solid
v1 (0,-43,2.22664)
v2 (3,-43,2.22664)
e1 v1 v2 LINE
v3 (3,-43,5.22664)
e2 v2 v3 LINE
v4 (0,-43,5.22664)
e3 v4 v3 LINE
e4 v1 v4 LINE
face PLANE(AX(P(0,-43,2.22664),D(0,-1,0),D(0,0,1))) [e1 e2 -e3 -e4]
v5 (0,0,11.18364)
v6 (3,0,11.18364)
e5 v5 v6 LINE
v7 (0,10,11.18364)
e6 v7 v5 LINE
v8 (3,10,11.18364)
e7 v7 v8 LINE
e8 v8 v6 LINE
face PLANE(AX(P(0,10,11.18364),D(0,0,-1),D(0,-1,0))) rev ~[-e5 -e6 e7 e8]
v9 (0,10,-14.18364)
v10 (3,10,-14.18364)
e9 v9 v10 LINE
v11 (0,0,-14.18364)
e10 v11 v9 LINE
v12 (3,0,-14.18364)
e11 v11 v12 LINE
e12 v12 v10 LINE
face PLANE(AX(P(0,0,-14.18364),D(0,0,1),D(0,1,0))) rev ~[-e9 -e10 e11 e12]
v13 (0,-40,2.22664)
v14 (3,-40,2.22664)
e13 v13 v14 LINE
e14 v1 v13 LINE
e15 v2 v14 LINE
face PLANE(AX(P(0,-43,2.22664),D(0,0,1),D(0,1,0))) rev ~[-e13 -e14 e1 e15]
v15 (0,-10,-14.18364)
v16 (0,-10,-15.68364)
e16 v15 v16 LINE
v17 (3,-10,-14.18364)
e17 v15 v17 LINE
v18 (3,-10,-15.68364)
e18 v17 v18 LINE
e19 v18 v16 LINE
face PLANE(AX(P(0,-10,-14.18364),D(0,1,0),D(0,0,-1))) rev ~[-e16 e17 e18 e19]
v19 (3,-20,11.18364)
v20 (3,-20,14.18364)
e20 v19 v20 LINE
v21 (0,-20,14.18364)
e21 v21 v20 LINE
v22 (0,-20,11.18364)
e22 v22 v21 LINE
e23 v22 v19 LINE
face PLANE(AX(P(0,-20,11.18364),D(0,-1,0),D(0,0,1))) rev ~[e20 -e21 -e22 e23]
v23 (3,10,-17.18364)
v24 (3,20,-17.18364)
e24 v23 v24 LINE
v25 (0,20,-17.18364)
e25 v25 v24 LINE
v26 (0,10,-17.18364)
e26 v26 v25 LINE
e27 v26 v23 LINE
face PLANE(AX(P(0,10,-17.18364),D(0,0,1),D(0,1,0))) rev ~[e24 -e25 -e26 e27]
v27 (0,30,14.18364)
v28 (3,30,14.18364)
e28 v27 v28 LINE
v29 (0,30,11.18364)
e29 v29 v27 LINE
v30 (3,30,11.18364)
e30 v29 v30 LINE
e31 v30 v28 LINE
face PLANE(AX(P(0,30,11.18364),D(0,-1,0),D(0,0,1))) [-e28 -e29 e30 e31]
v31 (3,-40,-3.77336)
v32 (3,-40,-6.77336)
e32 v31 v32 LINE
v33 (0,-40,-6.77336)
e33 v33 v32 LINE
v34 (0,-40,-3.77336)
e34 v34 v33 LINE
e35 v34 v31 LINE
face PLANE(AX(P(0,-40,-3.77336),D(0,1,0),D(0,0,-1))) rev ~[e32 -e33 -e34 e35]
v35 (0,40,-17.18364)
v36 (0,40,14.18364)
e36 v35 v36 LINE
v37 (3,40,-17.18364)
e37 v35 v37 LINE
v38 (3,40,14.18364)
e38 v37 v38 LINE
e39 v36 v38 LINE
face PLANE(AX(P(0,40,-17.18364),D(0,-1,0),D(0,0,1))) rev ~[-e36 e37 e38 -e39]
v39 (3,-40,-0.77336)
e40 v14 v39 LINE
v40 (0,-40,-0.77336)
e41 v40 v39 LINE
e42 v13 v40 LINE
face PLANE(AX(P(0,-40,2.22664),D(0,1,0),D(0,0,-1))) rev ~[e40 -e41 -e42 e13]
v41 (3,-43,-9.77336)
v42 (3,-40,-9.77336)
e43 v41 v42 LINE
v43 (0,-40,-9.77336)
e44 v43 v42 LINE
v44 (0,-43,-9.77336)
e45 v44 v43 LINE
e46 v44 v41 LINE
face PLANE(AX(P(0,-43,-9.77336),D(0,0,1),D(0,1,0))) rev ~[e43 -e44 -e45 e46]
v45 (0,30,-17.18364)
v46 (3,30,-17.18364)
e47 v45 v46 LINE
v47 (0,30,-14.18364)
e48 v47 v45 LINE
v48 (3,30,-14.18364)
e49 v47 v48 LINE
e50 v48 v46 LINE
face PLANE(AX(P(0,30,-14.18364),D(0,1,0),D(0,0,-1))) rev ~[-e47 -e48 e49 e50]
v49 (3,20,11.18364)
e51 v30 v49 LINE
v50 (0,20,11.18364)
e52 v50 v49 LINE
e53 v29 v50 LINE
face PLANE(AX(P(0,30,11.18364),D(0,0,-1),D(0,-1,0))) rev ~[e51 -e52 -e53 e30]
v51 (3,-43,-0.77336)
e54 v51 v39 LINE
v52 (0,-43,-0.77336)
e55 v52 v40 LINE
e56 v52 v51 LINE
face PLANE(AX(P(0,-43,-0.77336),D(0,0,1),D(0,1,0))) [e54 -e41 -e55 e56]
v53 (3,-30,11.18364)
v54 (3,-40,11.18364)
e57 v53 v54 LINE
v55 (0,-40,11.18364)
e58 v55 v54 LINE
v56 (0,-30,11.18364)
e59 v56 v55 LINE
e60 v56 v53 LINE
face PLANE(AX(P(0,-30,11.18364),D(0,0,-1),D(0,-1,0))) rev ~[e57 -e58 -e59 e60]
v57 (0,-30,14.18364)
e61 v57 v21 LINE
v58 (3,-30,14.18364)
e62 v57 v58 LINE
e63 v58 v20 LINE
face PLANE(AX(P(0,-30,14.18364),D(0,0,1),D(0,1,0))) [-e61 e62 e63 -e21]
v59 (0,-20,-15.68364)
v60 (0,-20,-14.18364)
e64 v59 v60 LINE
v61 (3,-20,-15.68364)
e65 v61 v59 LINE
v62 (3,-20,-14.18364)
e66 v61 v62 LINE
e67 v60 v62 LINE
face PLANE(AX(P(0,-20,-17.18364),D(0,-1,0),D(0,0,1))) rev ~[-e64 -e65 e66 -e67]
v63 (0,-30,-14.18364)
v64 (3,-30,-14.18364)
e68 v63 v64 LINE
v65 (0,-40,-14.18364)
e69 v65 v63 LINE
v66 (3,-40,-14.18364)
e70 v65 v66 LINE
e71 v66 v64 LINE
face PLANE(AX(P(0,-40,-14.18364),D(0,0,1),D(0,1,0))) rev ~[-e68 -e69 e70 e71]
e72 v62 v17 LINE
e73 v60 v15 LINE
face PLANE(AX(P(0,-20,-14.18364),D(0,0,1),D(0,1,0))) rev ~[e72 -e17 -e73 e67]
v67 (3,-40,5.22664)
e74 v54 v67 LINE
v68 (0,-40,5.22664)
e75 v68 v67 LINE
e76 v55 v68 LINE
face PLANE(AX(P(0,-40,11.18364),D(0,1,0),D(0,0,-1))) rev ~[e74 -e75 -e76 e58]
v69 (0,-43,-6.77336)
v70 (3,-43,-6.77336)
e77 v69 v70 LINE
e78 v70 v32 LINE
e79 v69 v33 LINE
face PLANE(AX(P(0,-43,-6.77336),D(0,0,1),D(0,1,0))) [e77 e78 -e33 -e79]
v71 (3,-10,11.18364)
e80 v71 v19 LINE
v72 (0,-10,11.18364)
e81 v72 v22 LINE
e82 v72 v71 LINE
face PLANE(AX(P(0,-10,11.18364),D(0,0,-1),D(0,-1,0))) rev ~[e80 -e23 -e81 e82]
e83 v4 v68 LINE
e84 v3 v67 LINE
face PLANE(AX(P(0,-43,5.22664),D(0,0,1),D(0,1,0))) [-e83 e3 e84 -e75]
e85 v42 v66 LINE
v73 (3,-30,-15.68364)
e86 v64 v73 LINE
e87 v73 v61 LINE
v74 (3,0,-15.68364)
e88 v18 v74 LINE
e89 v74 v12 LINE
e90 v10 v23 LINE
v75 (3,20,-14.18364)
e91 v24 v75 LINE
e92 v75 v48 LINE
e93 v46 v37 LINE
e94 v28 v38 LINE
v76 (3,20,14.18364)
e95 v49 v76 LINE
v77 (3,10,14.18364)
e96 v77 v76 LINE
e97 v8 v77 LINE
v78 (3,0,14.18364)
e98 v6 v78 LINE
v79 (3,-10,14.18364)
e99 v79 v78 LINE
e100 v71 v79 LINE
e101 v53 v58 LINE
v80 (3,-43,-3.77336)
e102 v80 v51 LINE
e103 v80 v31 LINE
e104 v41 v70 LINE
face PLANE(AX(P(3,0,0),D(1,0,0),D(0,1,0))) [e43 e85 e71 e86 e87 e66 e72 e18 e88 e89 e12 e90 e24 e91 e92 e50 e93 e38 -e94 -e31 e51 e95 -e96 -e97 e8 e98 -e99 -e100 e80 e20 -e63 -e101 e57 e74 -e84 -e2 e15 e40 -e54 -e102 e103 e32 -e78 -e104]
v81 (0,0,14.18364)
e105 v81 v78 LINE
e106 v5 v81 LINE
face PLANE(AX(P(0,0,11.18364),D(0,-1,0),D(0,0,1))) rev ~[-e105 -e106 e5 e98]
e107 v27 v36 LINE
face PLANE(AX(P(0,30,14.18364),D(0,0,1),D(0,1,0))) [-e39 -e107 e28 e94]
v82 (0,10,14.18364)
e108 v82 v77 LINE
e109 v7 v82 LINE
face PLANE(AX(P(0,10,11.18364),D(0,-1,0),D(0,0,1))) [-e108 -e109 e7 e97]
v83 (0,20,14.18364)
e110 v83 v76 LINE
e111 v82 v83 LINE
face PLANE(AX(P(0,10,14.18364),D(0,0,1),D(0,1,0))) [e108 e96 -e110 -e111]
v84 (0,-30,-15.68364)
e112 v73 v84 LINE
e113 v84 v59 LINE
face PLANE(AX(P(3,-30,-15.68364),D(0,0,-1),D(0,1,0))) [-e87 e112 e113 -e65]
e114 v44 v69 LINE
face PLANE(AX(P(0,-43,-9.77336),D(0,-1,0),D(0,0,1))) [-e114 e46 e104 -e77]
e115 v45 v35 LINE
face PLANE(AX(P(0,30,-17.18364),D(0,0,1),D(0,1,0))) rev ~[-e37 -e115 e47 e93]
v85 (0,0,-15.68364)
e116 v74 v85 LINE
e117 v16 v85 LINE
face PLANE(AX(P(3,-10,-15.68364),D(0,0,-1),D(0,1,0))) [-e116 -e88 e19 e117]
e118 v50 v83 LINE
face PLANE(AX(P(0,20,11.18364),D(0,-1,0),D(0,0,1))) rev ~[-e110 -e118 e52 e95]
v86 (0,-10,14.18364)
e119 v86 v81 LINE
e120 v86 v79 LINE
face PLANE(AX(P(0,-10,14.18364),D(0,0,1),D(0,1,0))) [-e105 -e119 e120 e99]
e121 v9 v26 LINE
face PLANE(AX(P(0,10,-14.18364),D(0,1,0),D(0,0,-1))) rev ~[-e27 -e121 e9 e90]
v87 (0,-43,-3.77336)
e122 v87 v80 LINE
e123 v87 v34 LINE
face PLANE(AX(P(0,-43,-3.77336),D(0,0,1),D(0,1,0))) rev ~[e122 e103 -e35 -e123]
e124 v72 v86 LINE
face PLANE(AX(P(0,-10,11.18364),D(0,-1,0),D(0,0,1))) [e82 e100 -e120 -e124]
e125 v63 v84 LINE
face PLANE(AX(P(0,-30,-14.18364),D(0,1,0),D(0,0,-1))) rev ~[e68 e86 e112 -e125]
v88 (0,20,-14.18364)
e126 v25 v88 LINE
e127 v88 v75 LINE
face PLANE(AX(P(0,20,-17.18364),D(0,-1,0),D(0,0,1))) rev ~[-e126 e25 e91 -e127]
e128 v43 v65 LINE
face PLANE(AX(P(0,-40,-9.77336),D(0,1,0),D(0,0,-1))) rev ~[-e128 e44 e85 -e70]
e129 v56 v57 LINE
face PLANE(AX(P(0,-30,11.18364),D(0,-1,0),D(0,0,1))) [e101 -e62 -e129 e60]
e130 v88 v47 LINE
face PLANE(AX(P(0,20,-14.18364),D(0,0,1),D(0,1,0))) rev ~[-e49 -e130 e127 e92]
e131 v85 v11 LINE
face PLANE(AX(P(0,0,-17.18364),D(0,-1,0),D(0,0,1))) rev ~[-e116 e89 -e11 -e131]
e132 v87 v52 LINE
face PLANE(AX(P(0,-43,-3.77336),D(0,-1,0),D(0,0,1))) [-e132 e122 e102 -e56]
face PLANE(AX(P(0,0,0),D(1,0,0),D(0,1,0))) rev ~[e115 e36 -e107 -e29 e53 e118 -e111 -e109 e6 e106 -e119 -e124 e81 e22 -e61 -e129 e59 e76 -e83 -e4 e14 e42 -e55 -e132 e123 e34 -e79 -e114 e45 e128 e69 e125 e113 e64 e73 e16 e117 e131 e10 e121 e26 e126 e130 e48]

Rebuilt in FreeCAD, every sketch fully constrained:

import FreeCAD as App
import Part
import Sketcher

V = App.Vector

doc = App.newDocument("Part")
body = doc.addObject("PartDesign::Body", "Body")

sketch1 = doc.addObject("Sketcher::SketchObject", "Sketch")
body.addObject(sketch1)
sketch1.AttachmentSupport = (doc.YZ_Plane, [""])
sketch1.MapMode = "FlatFace"
sketch1.addGeometry(Part.LineSegment(V(-30, 11.18364, 0), V(-40, 11.18364, 0)), False)
sketch1.addGeometry(Part.LineSegment(V(-40, 11.18364, 0), V(-40, 5.22664, 0)), False)
sketch1.addGeometry(Part.LineSegment(V(-40, 5.22664, 0), V(-43, 5.22664, 0)), False)
sketch1.addGeometry(Part.LineSegment(V(-43, 5.22664, 0), V(-43, 2.22664, 0)), False)
sketch1.addGeometry(Part.LineSegment(V(-43, 2.22664, 0), V(-40, 2.22664, 0)), False)
sketch1.addGeometry(Part.LineSegment(V(-40, 2.22664, 0), V(-40, -0.77336, 0)), False)
sketch1.addGeometry(Part.LineSegment(V(-40, -0.77336, 0), V(-43, -0.77336, 0)), False)
sketch1.addGeometry(Part.LineSegment(V(-43, -0.77336, 0), V(-43, -3.77336, 0)), False)
sketch1.addGeometry(Part.LineSegment(V(-43, -3.77336, 0), V(-40, -3.77336, 0)), False)
sketch1.addGeometry(Part.LineSegment(V(-40, -3.77336, 0), V(-40, -6.77336, 0)), False)
sketch1.addGeometry(Part.LineSegment(V(-40, -6.77336, 0), V(-43, -6.77336, 0)), False)
sketch1.addGeometry(Part.LineSegment(V(-43, -6.77336, 0), V(-43, -9.77336, 0)), False)
sketch1.addGeometry(Part.LineSegment(V(-43, -9.77336, 0), V(-40, -9.77336, 0)), False)
sketch1.addGeometry(Part.LineSegment(V(-40, -9.77336, 0), V(-40, -14.18364, 0)), False)
sketch1.addGeometry(Part.LineSegment(V(-40, -14.18364, 0), V(-30, -14.18364, 0)), False)
sketch1.addGeometry(Part.LineSegment(V(-30, -14.18364, 0), V(-30, -17.18364, 0)), False)
sketch1.addGeometry(Part.LineSegment(V(-30, -17.18364, 0), V(-20, -17.18364, 0)), False)
sketch1.addGeometry(Part.LineSegment(V(-20, -17.18364, 0), V(-20, -14.18364, 0)), False)
sketch1.addGeometry(Part.LineSegment(V(-20, -14.18364, 0), V(-10, -14.18364, 0)), False)
sketch1.addGeometry(Part.LineSegment(V(-10, -14.18364, 0), V(-10, -17.18364, 0)), False)
sketch1.addGeometry(Part.LineSegment(V(-10, -17.18364, 0), V(0, -17.18364, 0)), False)
sketch1.addGeometry(Part.LineSegment(V(0, -17.18364, 0), V(0, -14.18364, 0)), False)
sketch1.addGeometry(Part.LineSegment(V(0, -14.18364, 0), V(10, -14.18364, 0)), False)
sketch1.addGeometry(Part.LineSegment(V(10, -14.18364, 0), V(10, -17.18364, 0)), False)
sketch1.addGeometry(Part.LineSegment(V(10, -17.18364, 0), V(20, -17.18364, 0)), False)
sketch1.addGeometry(Part.LineSegment(V(20, -17.18364, 0), V(20, -14.18364, 0)), False)
sketch1.addGeometry(Part.LineSegment(V(20, -14.18364, 0), V(30, -14.18364, 0)), False)
sketch1.addGeometry(Part.LineSegment(V(30, -14.18364, 0), V(30, -17.18364, 0)), False)
sketch1.addGeometry(Part.LineSegment(V(30, -17.18364, 0), V(40, -17.18364, 0)), False)
sketch1.addGeometry(Part.LineSegment(V(40, -17.18364, 0), V(40, 14.18364, 0)), False)
sketch1.addGeometry(Part.LineSegment(V(40, 14.18364, 0), V(30, 14.18364, 0)), False)
sketch1.addGeometry(Part.LineSegment(V(30, 14.18364, 0), V(30, 11.18364, 0)), False)
sketch1.addGeometry(Part.LineSegment(V(30, 11.18364, 0), V(20, 11.18364, 0)), False)
sketch1.addGeometry(Part.LineSegment(V(20, 11.18364, 0), V(20, 14.18364, 0)), False)
sketch1.addGeometry(Part.LineSegment(V(20, 14.18364, 0), V(10, 14.18364, 0)), False)
sketch1.addGeometry(Part.LineSegment(V(10, 14.18364, 0), V(10, 11.18364, 0)), False)
sketch1.addGeometry(Part.LineSegment(V(10, 11.18364, 0), V(0, 11.18364, 0)), False)
sketch1.addGeometry(Part.LineSegment(V(0, 11.18364, 0), V(0, 14.18364, 0)), False)
sketch1.addGeometry(Part.LineSegment(V(0, 14.18364, 0), V(-10, 14.18364, 0)), False)
sketch1.addGeometry(Part.LineSegment(V(-10, 14.18364, 0), V(-10, 11.18364, 0)), False)
sketch1.addGeometry(Part.LineSegment(V(-10, 11.18364, 0), V(-20, 11.18364, 0)), False)
sketch1.addGeometry(Part.LineSegment(V(-20, 11.18364, 0), V(-20, 14.18364, 0)), False)
sketch1.addGeometry(Part.LineSegment(V(-20, 14.18364, 0), V(-30, 14.18364, 0)), False)
sketch1.addGeometry(Part.LineSegment(V(-30, 14.18364, 0), V(-30, 11.18364, 0)), False)
sketch1.addConstraint(Sketcher.Constraint("Coincident", 0, 2, 1, 1))
sketch1.addConstraint(Sketcher.Constraint("Coincident", 1, 2, 2, 1))
sketch1.addConstraint(Sketcher.Constraint("Coincident", 2, 2, 3, 1))
sketch1.addConstraint(Sketcher.Constraint("Coincident", 3, 2, 4, 1))
sketch1.addConstraint(Sketcher.Constraint("Coincident", 4, 2, 5, 1))
sketch1.addConstraint(Sketcher.Constraint("Coincident", 5, 2, 6, 1))
sketch1.addConstraint(Sketcher.Constraint("Coincident", 6, 2, 7, 1))
sketch1.addConstraint(Sketcher.Constraint("Coincident", 7, 2, 8, 1))
sketch1.addConstraint(Sketcher.Constraint("Coincident", 8, 2, 9, 1))
sketch1.addConstraint(Sketcher.Constraint("Coincident", 9, 2, 10, 1))
sketch1.addConstraint(Sketcher.Constraint("Coincident", 10, 2, 11, 1))
sketch1.addConstraint(Sketcher.Constraint("Coincident", 11, 2, 12, 1))
sketch1.addConstraint(Sketcher.Constraint("Coincident", 12, 2, 13, 1))
sketch1.addConstraint(Sketcher.Constraint("Coincident", 13, 2, 14, 1))
sketch1.addConstraint(Sketcher.Constraint("Coincident", 14, 2, 15, 1))
sketch1.addConstraint(Sketcher.Constraint("Coincident", 15, 2, 16, 1))
sketch1.addConstraint(Sketcher.Constraint("Coincident", 16, 2, 17, 1))
sketch1.addConstraint(Sketcher.Constraint("Coincident", 17, 2, 18, 1))
sketch1.addConstraint(Sketcher.Constraint("Coincident", 18, 2, 19, 1))
sketch1.addConstraint(Sketcher.Constraint("Coincident", 19, 2, 20, 1))
sketch1.addConstraint(Sketcher.Constraint("Coincident", 20, 2, 21, 1))
sketch1.addConstraint(Sketcher.Constraint("Coincident", 21, 2, 22, 1))
sketch1.addConstraint(Sketcher.Constraint("Coincident", 22, 2, 23, 1))
sketch1.addConstraint(Sketcher.Constraint("Coincident", 23, 2, 24, 1))
sketch1.addConstraint(Sketcher.Constraint("Coincident", 24, 2, 25, 1))
sketch1.addConstraint(Sketcher.Constraint("Coincident", 25, 2, 26, 1))
sketch1.addConstraint(Sketcher.Constraint("Coincident", 26, 2, 27, 1))
sketch1.addConstraint(Sketcher.Constraint("Coincident", 27, 2, 28, 1))
sketch1.addConstraint(Sketcher.Constraint("Coincident", 28, 2, 29, 1))
sketch1.addConstraint(Sketcher.Constraint("Coincident", 29, 2, 30, 1))
sketch1.addConstraint(Sketcher.Constraint("Coincident", 30, 2, 31, 1))
sketch1.addConstraint(Sketcher.Constraint("Coincident", 31, 2, 32, 1))
sketch1.addConstraint(Sketcher.Constraint("Coincident", 32, 2, 33, 1))
sketch1.addConstraint(Sketcher.Constraint("Coincident", 33, 2, 34, 1))
sketch1.addConstraint(Sketcher.Constraint("Coincident", 34, 2, 35, 1))
sketch1.addConstraint(Sketcher.Constraint("Coincident", 35, 2, 36, 1))
sketch1.addConstraint(Sketcher.Constraint("Coincident", 36, 2, 37, 1))
sketch1.addConstraint(Sketcher.Constraint("Coincident", 37, 2, 38, 1))
sketch1.addConstraint(Sketcher.Constraint("Coincident", 38, 2, 39, 1))
sketch1.addConstraint(Sketcher.Constraint("Coincident", 39, 2, 40, 1))
sketch1.addConstraint(Sketcher.Constraint("Coincident", 40, 2, 41, 1))
sketch1.addConstraint(Sketcher.Constraint("Coincident", 41, 2, 42, 1))
sketch1.addConstraint(Sketcher.Constraint("Coincident", 42, 2, 43, 1))
sketch1.addConstraint(Sketcher.Constraint("Coincident", 43, 2, 0, 1))
sketch1.addConstraint(Sketcher.Constraint("Horizontal", 0))
sketch1.addConstraint(Sketcher.Constraint("Vertical", 1))
sketch1.addConstraint(Sketcher.Constraint("Horizontal", 2))
sketch1.addConstraint(Sketcher.Constraint("Vertical", 3))
sketch1.addConstraint(Sketcher.Constraint("Horizontal", 4))
sketch1.addConstraint(Sketcher.Constraint("Vertical", 5))
sketch1.addConstraint(Sketcher.Constraint("Horizontal", 6))
sketch1.addConstraint(Sketcher.Constraint("Vertical", 7))
sketch1.addConstraint(Sketcher.Constraint("Horizontal", 8))
sketch1.addConstraint(Sketcher.Constraint("Vertical", 9))
sketch1.addConstraint(Sketcher.Constraint("Horizontal", 10))
sketch1.addConstraint(Sketcher.Constraint("Vertical", 11))
sketch1.addConstraint(Sketcher.Constraint("Horizontal", 12))
sketch1.addConstraint(Sketcher.Constraint("Vertical", 13))
sketch1.addConstraint(Sketcher.Constraint("Horizontal", 14))
sketch1.addConstraint(Sketcher.Constraint("Vertical", 15))
sketch1.addConstraint(Sketcher.Constraint("Horizontal", 16))
sketch1.addConstraint(Sketcher.Constraint("Vertical", 17))
sketch1.addConstraint(Sketcher.Constraint("Horizontal", 18))
sketch1.addConstraint(Sketcher.Constraint("Vertical", 19))
sketch1.addConstraint(Sketcher.Constraint("Horizontal", 20))
sketch1.addConstraint(Sketcher.Constraint("Vertical", 21))
sketch1.addConstraint(Sketcher.Constraint("Horizontal", 22))
sketch1.addConstraint(Sketcher.Constraint("Vertical", 23))
sketch1.addConstraint(Sketcher.Constraint("Horizontal", 24))
sketch1.addConstraint(Sketcher.Constraint("Vertical", 25))
sketch1.addConstraint(Sketcher.Constraint("Horizontal", 26))
sketch1.addConstraint(Sketcher.Constraint("Vertical", 27))
sketch1.addConstraint(Sketcher.Constraint("Horizontal", 28))
sketch1.addConstraint(Sketcher.Constraint("Vertical", 29))
sketch1.addConstraint(Sketcher.Constraint("Horizontal", 30))
sketch1.addConstraint(Sketcher.Constraint("Vertical", 31))
sketch1.addConstraint(Sketcher.Constraint("Horizontal", 32))
sketch1.addConstraint(Sketcher.Constraint("Vertical", 33))
sketch1.addConstraint(Sketcher.Constraint("Horizontal", 34))
sketch1.addConstraint(Sketcher.Constraint("Vertical", 35))
sketch1.addConstraint(Sketcher.Constraint("Horizontal", 36))
sketch1.addConstraint(Sketcher.Constraint("Vertical", 37))
sketch1.addConstraint(Sketcher.Constraint("Horizontal", 38))
sketch1.addConstraint(Sketcher.Constraint("Vertical", 39))
sketch1.addConstraint(Sketcher.Constraint("Horizontal", 40))
sketch1.addConstraint(Sketcher.Constraint("Vertical", 41))
sketch1.addConstraint(Sketcher.Constraint("Horizontal", 42))
sketch1.addConstraint(Sketcher.Constraint("Vertical", 43))
sketch1.addConstraint(Sketcher.Constraint("Symmetric", 13, 2, 29, 2, -1, 1))
sketch1.addConstraint(Sketcher.Constraint("Symmetric", 17, 2, 33, 2, -1, 1))
sketch1.addConstraint(Sketcher.Constraint("Symmetric", 21, 2, 37, 2, -1, 1))
sketch1.addConstraint(Sketcher.Constraint("Symmetric", 25, 2, 41, 2, -1, 1))
sketch1.addConstraint(Sketcher.Constraint("Symmetric", 18, 2, 22, 2, -2))
sketch1.addConstraint(Sketcher.Constraint("Symmetric", 16, 2, 24, 2, -2))
sketch1.addConstraint(Sketcher.Constraint("Symmetric", 14, 2, 26, 2, -2))
sketch1.addConstraint(Sketcher.Constraint("Symmetric", 35, 2, 39, 2, -2))
sketch1.addConstraint(Sketcher.Constraint("Symmetric", 31, 2, 43, 2, -2))
sketch1.addConstraint(Sketcher.Constraint("PointOnObject", 20, 2, -2))
sketch1.addConstraint(Sketcher.Constraint("Horizontal", 14, 2, 17, 2))
sketch1.addConstraint(Sketcher.Constraint("Horizontal", 16, 2, 19, 2))
sketch1.addConstraint(Sketcher.Constraint("Horizontal", 24, 2, 27, 2))
sketch1.addConstraint(Sketcher.Constraint("Horizontal", 32, 2, 35, 2))
sketch1.addConstraint(Sketcher.Constraint("Vertical", 1, 2, 4, 2))
sketch1.addConstraint(Sketcher.Constraint("Vertical", 3, 2, 6, 2))
sketch1.addConstraint(Sketcher.Constraint("Vertical", 5, 2, 8, 2))
sketch1.addConstraint(Sketcher.Constraint("Vertical", 7, 2, 10, 2))
sketch1.addConstraint(Sketcher.Constraint("Vertical", 9, 2, 12, 2))
sketch1.addConstraint(Sketcher.Constraint("Vertical", 27, 2, 30, 2))
sketch1.addConstraint(Sketcher.Constraint("Vertical", 23, 2, 34, 2))
sketch1.addConstraint(Sketcher.Constraint("Equal", 14, 16))
sketch1.addConstraint(Sketcher.Constraint("Equal", 16, 18))
sketch1.addConstraint(Sketcher.Constraint("Equal", 18, 20))
sketch1.addConstraint(Sketcher.Constraint("Equal", 12, 3))
sketch1.addConstraint(Sketcher.Constraint("Equal", 3, 5))
sketch1.addConstraint(Sketcher.Constraint("Equal", 5, 7))
sketch1.addConstraint(Sketcher.Constraint("Equal", 7, 9))
sketch1.addConstraint(Sketcher.Constraint("Equal", 9, 11))
sketch1.addConstraint(Sketcher.Constraint("Equal", 11, 15))
sketch1.addConstraint(Sketcher.Constraint("Equal", 27, 31))
sketch1.addConstraint(Sketcher.Constraint("DistanceX", 0, 2, 0, 1, 10.0))
sketch1.addConstraint(Sketcher.Constraint("DistanceX", 2, 2, 2, 1, 3.0))
sketch1.addConstraint(Sketcher.Constraint("DistanceY", 1, 2, 1, 1, 5.957))
sketch1.addConstraint(Sketcher.Constraint("DistanceY", 13, 2, 13, 1, 4.41028))
pad1 = doc.addObject("PartDesign::Pad", "Pad")
body.addObject(pad1)
pad1.Profile = sketch1
pad1.Length = 3

sketch2 = doc.addObject("Sketcher::SketchObject", "Sketch001")
body.addObject(sketch2)
sketch2.AttachmentSupport = (doc.YZ_Plane, [""])
sketch2.MapMode = "FlatFace"
sketch2.AttachmentOffset = App.Placement(V(0, 0, 3), App.Rotation())
sketch2.addGeometry(Part.LineSegment(V(-30, -15.68364, 0), V(-30, -17.18364, 0)), False)
sketch2.addGeometry(Part.LineSegment(V(-30, -17.18364, 0), V(-20, -17.18364, 0)), False)
sketch2.addGeometry(Part.LineSegment(V(-20, -17.18364, 0), V(-20, -15.68364, 0)), False)
sketch2.addGeometry(Part.LineSegment(V(-20, -15.68364, 0), V(-30, -15.68364, 0)), False)
sketch2.addGeometry(Part.LineSegment(V(-10, -15.68364, 0), V(-10, -17.18364, 0)), False)
sketch2.addGeometry(Part.LineSegment(V(-10, -17.18364, 0), V(0, -17.18364, 0)), False)
sketch2.addGeometry(Part.LineSegment(V(0, -17.18364, 0), V(0, -15.68364, 0)), False)
sketch2.addGeometry(Part.LineSegment(V(0, -15.68364, 0), V(-10, -15.68364, 0)), False)
sketch2.addConstraint(Sketcher.Constraint("Coincident", 0, 2, 1, 1))
sketch2.addConstraint(Sketcher.Constraint("Coincident", 1, 2, 2, 1))
sketch2.addConstraint(Sketcher.Constraint("Coincident", 2, 2, 3, 1))
sketch2.addConstraint(Sketcher.Constraint("Coincident", 3, 2, 0, 1))
sketch2.addConstraint(Sketcher.Constraint("Coincident", 4, 2, 5, 1))
sketch2.addConstraint(Sketcher.Constraint("Coincident", 5, 2, 6, 1))
sketch2.addConstraint(Sketcher.Constraint("Coincident", 6, 2, 7, 1))
sketch2.addConstraint(Sketcher.Constraint("Coincident", 7, 2, 4, 1))
sketch2.addConstraint(Sketcher.Constraint("Vertical", 0))
sketch2.addConstraint(Sketcher.Constraint("Horizontal", 1))
sketch2.addConstraint(Sketcher.Constraint("Vertical", 2))
sketch2.addConstraint(Sketcher.Constraint("Horizontal", 3))
sketch2.addConstraint(Sketcher.Constraint("Vertical", 4))
sketch2.addConstraint(Sketcher.Constraint("Horizontal", 5))
sketch2.addConstraint(Sketcher.Constraint("Vertical", 6))
sketch2.addConstraint(Sketcher.Constraint("Horizontal", 7))
sketch2.addConstraint(Sketcher.Constraint("PointOnObject", 5, 2, -2))
sketch2.addConstraint(Sketcher.Constraint("Horizontal", 1, 2, 4, 2))
sketch2.addConstraint(Sketcher.Constraint("Horizontal", 3, 2, 6, 2))
sketch2.addConstraint(Sketcher.Constraint("Equal", 3, 5))
sketch2.addConstraint(Sketcher.Constraint("DistanceX", 1, 1, 1, 2, 10.0))
sketch2.addConstraint(Sketcher.Constraint("DistanceY", 0, 2, 0, 1, 1.5))
sketch2.addConstraint(Sketcher.Constraint("DistanceX", 0, 2, -1, 1, 30.0))
sketch2.addConstraint(Sketcher.Constraint("DistanceY", 0, 2, -1, 1, 17.18364))
pocket1 = doc.addObject("PartDesign::Pocket", "Pocket")
body.addObject(pocket1)
pocket1.Profile = sketch2
pocket1.Length = 25

doc.recompute()
